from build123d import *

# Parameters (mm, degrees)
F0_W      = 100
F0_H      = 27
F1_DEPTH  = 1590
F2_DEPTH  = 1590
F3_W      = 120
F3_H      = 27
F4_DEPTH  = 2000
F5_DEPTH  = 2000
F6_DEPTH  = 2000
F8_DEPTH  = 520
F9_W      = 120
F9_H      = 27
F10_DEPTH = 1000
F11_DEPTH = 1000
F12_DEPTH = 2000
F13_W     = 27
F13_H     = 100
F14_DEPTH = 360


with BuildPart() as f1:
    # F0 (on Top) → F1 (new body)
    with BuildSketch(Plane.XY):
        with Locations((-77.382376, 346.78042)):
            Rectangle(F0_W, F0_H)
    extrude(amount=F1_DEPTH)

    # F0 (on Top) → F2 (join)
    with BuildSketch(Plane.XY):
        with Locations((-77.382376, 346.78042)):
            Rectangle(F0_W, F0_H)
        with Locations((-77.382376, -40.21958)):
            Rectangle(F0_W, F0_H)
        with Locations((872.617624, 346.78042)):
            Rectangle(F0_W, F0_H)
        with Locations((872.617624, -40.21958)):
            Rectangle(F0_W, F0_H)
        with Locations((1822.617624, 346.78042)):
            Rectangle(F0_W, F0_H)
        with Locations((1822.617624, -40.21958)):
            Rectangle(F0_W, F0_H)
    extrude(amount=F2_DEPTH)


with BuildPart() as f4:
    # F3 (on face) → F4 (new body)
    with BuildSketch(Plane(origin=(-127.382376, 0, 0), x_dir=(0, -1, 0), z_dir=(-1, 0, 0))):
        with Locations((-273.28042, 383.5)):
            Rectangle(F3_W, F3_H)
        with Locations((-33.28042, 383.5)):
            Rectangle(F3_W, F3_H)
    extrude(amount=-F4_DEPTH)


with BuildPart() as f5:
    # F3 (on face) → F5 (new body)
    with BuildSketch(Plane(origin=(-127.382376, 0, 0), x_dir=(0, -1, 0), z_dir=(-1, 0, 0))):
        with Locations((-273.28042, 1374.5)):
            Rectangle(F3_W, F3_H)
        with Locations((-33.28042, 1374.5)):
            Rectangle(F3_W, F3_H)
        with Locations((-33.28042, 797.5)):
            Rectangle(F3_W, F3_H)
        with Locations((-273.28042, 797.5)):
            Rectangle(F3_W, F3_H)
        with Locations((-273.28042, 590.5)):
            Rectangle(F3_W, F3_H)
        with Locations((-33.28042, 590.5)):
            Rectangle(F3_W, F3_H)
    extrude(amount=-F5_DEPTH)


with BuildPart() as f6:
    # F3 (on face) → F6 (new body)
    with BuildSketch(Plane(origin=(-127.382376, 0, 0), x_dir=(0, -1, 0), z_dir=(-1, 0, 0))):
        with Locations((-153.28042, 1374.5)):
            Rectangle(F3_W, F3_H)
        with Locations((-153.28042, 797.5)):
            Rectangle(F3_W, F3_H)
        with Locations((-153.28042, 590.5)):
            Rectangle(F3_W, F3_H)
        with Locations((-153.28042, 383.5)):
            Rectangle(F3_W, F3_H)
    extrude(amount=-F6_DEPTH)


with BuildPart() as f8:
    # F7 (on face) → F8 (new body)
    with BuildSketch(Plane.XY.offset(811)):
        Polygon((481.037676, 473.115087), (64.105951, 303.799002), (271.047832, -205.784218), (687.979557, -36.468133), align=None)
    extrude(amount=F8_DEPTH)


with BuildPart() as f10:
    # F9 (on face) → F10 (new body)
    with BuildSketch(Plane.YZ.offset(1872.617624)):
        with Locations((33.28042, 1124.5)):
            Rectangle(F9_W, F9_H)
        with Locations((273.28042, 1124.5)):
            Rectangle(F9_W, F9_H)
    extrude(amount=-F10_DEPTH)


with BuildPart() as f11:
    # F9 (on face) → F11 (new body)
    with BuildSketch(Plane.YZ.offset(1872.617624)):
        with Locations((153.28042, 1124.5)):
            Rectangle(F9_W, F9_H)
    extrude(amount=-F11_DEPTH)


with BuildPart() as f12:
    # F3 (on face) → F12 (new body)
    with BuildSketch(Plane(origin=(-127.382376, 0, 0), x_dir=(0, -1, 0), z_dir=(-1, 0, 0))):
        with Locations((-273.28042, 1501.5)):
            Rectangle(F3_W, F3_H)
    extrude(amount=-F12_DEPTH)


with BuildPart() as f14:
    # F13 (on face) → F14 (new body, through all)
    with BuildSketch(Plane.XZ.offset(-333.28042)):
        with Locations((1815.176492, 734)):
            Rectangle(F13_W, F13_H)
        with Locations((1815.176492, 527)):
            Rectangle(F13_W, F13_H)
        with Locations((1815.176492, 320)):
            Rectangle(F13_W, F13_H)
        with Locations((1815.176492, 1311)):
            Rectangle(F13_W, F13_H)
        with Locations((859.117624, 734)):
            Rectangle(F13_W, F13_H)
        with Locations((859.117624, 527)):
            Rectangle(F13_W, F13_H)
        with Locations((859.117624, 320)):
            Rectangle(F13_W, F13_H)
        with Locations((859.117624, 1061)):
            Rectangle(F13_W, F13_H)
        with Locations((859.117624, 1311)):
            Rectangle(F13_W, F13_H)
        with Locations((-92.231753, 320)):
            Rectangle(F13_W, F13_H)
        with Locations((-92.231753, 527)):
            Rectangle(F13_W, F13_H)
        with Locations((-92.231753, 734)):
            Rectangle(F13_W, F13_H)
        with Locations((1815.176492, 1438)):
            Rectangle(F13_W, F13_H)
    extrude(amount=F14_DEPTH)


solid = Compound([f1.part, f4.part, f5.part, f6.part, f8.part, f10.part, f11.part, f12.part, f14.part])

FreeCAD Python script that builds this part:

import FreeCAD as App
import Part
import Sketcher
from FreeCAD import Vector


def add_polygon(sketch, points):
    """Adds a closed chain of lines whose ends are joined by coincident constraints."""
    first, n = sketch.GeometryCount, len(points)
    for a, b in zip(points, points[1:] + points[:1]):
        sketch.addGeometry(Part.LineSegment(App.Vector(*a, 0), App.Vector(*b, 0)), False)
    for i in range(n):
        sketch.addConstraint(Sketcher.Constraint("Coincident", first + i, 2, first + (i + 1) % n, 1))

doc = App.newDocument("Part")
params = doc.addObject("Spreadsheet::Sheet", "Params")
for row, (alias, value) in enumerate([
    ("sketch1_width", "100 mm"),
    ("sketch1_height", "27 mm"),
    ("pad1_length", "1590 mm"),
    ("sketch2_width", "100 mm"),
    ("sketch2_height", "27 mm"),
    ("pad2_length", "1590 mm"),
    ("sketch3_width", "120 mm"),
    ("sketch3_height", "27 mm"),
    ("pad3_length", "2000 mm"),
    ("sketch4_width", "120 mm"),
    ("sketch4_height", "27 mm"),
    ("pad4_length", "2000 mm"),
    ("sketch5_width", "120 mm"),
    ("sketch5_height", "27 mm"),
    ("pad5_length", "2000 mm"),
    ("sketch6_length", "450 mm"),
    ("sketch6_length2", "550 mm"),
    ("pad6_length", "520 mm"),
    ("sketch7_width", "120 mm"),
    ("sketch7_height", "27 mm"),
    ("pad7_length", "1000 mm"),
    ("sketch8_width", "120 mm"),
    ("sketch8_height", "27 mm"),
    ("pad8_length", "1000 mm"),
    ("sketch9_width", "120 mm"),
    ("sketch9_height", "27 mm"),
    ("pad9_length", "2000 mm"),
    ("sketch10_width", "27 mm"),
    ("sketch10_height", "100 mm"),
    ("pad10_length", "360 mm"),
], start=1):
    params.set(f"A{row}", alias)
    params.set(f"B{row}", "=" + value)
    params.setAlias(f"B{row}", alias)

body = doc.addObject("PartDesign::Body", "Body")
body.AllowCompound = True

# Sketch on XY plane
sketch1 = body.newObject("Sketcher::SketchObject", "Sketch")
sketch1.AttachmentSupport = (doc.getObject("XY_Plane"), [""])
sketch1.MapMode = "FlatFace"
add_polygon(sketch1, [(-127, 360), (-127, 333), (-27, 333), (-27, 360)])  # lines 0-3
sketch1.addConstraint([
    Sketcher.Constraint("Vertical", 0),
    Sketcher.Constraint("Horizontal", 1),
    Sketcher.Constraint("Vertical", 2),
    Sketcher.Constraint("Horizontal", 3),
    Sketcher.Constraint("DistanceX", 1, 1, 1, 2, 100.0),
    Sketcher.Constraint("DistanceY", 0, 2, 0, 1, 27.0),
    Sketcher.Constraint("DistanceY", -1, 1, 0, 2, 333.28042),
    Sketcher.Constraint("DistanceX", 0, 2, -1, 1, 127.382376),
])
sketch1.setExpression("Constraints[8]", "Params.sketch1_width")
sketch1.setExpression("Constraints[9]", "Params.sketch1_height")
pad1 = body.newObject("PartDesign::Pad", "Pad")
pad1.Profile = sketch1
pad1.setExpression("Length", "Params.pad1_length")

# Sketch on XY plane
sketch2 = body.newObject("Sketcher::SketchObject", "Sketch001")
sketch2.AttachmentSupport = (doc.getObject("XY_Plane"), [""])
sketch2.MapMode = "FlatFace"
add_polygon(sketch2, [(-127, 360), (-127, 333), (-27, 333), (-27, 360)])  # lines 0-3
add_polygon(sketch2, [(-127, -27), (-127, -54), (-27, -54), (-27, -27)])  # lines 4-7
add_polygon(sketch2, [(823, 360), (823, 333), (923, 333), (923, 360)])  # lines 8-11
add_polygon(sketch2, [(823, -27), (823, -54), (923, -54), (923, -27)])  # lines 12-15
add_polygon(sketch2, [(1773, 360), (1773, 333), (1873, 333), (1873, 360)])  # lines 16-19
add_polygon(sketch2, [(1773, -27), (1773, -54), (1873, -54), (1873, -27)])  # lines 20-23
sketch2.addConstraint([
    Sketcher.Constraint("Vertical", 0),
    Sketcher.Constraint("Horizontal", 1),
    Sketcher.Constraint("Vertical", 2),
    Sketcher.Constraint("Horizontal", 3),
    Sketcher.Constraint("Vertical", 4),
    Sketcher.Constraint("Horizontal", 5),
    Sketcher.Constraint("Vertical", 6),
    Sketcher.Constraint("Horizontal", 7),
    Sketcher.Constraint("Vertical", 8),
    Sketcher.Constraint("Horizontal", 9),
    Sketcher.Constraint("Vertical", 10),
    Sketcher.Constraint("Horizontal", 11),
    Sketcher.Constraint("Vertical", 12),
    Sketcher.Constraint("Horizontal", 13),
    Sketcher.Constraint("Vertical", 14),
    Sketcher.Constraint("Horizontal", 15),
    Sketcher.Constraint("Vertical", 16),
    Sketcher.Constraint("Horizontal", 17),
    Sketcher.Constraint("Vertical", 18),
    Sketcher.Constraint("Horizontal", 19),
    Sketcher.Constraint("Vertical", 20),
    Sketcher.Constraint("Horizontal", 21),
    Sketcher.Constraint("Vertical", 22),
    Sketcher.Constraint("Horizontal", 23),
    Sketcher.Constraint("Horizontal", 1, 2, 8, 2),
    Sketcher.Constraint("Horizontal", 3, 2, 10, 2),
    Sketcher.Constraint("Horizontal", 5, 2, 12, 2),
    Sketcher.Constraint("Horizontal", 7, 2, 14, 2),
    Sketcher.Constraint("Horizontal", 9, 2, 16, 2),
    Sketcher.Constraint("Horizontal", 11, 2, 18, 2),
    Sketcher.Constraint("Horizontal", 13, 2, 20, 2),
    Sketcher.Constraint("Horizontal", 15, 2, 22, 2),
    Sketcher.Constraint("Vertical", 3, 2, 4, 2),
    Sketcher.Constraint("Vertical", 2, 2, 5, 2),
    Sketcher.Constraint("Vertical", 11, 2, 12, 2),
    Sketcher.Constraint("Vertical", 10, 2, 13, 2),
    Sketcher.Constraint("Vertical", 19, 2, 20, 2),
    Sketcher.Constraint("Vertical", 18, 2, 21, 2),
    Sketcher.Constraint("Equal", 7, 9),
    Sketcher.Constraint("Equal", 15, 17),
    Sketcher.Constraint("Equal", 2, 4),
    Sketcher.Constraint("DistanceX", 1, 1, 1, 2, 100.0),
    Sketcher.Constraint("DistanceY", 0, 2, 0, 1, 27.0),
    Sketcher.Constraint("DistanceY", 4, 2, 0, 2, 387.0),
    Sketcher.Constraint("DistanceX", 1, 2, 8, 2, 850.0),
    Sketcher.Constraint("DistanceX", 9, 2, 16, 2, 850.0),
    Sketcher.Constraint("DistanceY", -1, 1, 0, 2, 333.28042),
    Sketcher.Constraint("DistanceX", 0, 2, -1, 1, 127.382376),
])
sketch2.setExpression("Constraints[65]", "Params.sketch2_width")
sketch2.setExpression("Constraints[66]", "Params.sketch2_height")
pad2 = body.newObject("PartDesign::Pad", "Pad001")
pad2.Profile = sketch2
pad2.setExpression("Length", "Params.pad2_length")
body2 = doc.addObject("PartDesign::Body", "Body001")
body2.AllowCompound = True

# Sketch on YZ plane
sketch3 = body2.newObject("Sketcher::SketchObject", "Sketch002")
sketch3.AttachmentSupport = (doc.getObject("YZ_Plane001"), [""])
sketch3.MapMode = "FlatFace"
sketch3.AttachmentOffset = App.Placement(Vector(0, 0, -127.382376), App.Rotation())
add_polygon(sketch3, [(333, 397), (333, 370), (213, 370), (213, 397)])  # lines 0-3
add_polygon(sketch3, [(93, 397), (93, 370), (-27, 370), (-27, 397)])  # lines 4-7
sketch3.addConstraint([
    Sketcher.Constraint("Vertical", 0),
    Sketcher.Constraint("Horizontal", 1),
    Sketcher.Constraint("Vertical", 2),
    Sketcher.Constraint("Horizontal", 3),
    Sketcher.Constraint("Vertical", 4),
    Sketcher.Constraint("Horizontal", 5),
    Sketcher.Constraint("Vertical", 6),
    Sketcher.Constraint("Horizontal", 7),
    Sketcher.Constraint("Horizontal", 1, 2, 4, 2),
    Sketcher.Constraint("Horizontal", 3, 2, 6, 2),
    Sketcher.Constraint("Equal", 3, 5),
    Sketcher.Constraint("DistanceX", 1, 2, 1, 1, 120.0),
    Sketcher.Constraint("DistanceY", 0, 2, 0, 1, 27.0),
    Sketcher.Constraint("DistanceY", -1, 1, 0, 2, 370.0),
    Sketcher.Constraint("DistanceX", 4, 2, 1, 2, 120.0),
    Sketcher.Constraint("DistanceX", -1, 1, 0, 2, 333.28042),
])
sketch3.setExpression("Constraints[19]", "Params.sketch3_width")
sketch3.setExpression("Constraints[20]", "Params.sketch3_height")
pad3 = body2.newObject("PartDesign::Pad", "Pad002")
pad3.Profile = sketch3
pad3.setExpression("Length", "Params.pad3_length")
body3 = doc.addObject("PartDesign::Body", "Body002")
body3.AllowCompound = True

# Sketch on YZ plane
sketch4 = body3.newObject("Sketcher::SketchObject", "Sketch003")
sketch4.AttachmentSupport = (doc.getObject("YZ_Plane002"), [""])
sketch4.MapMode = "FlatFace"
sketch4.AttachmentOffset = App.Placement(Vector(0, 0, -127.382376), App.Rotation())
add_polygon(sketch4, [(333, 1388), (333, 1361), (213, 1361), (213, 1388)])  # lines 0-3
add_polygon(sketch4, [(93, 1388), (93, 1361), (-27, 1361), (-27, 1388)])  # lines 4-7
add_polygon(sketch4, [(93, 811), (93, 784), (-27, 784), (-27, 811)])  # lines 8-11
add_polygon(sketch4, [(333, 811), (333, 784), (213, 784), (213, 811)])  # lines 12-15
add_polygon(sketch4, [(333, 604), (333, 577), (213, 577), (213, 604)])  # lines 16-19
add_polygon(sketch4, [(93, 604), (93, 577), (-27, 577), (-27, 604)])  # lines 20-23
sketch4.addConstraint([
    Sketcher.Constraint("Vertical", 0),
    Sketcher.Constraint("Horizontal", 1),
    Sketcher.Constraint("Vertical", 2),
    Sketcher.Constraint("Horizontal", 3),
    Sketcher.Constraint("Vertical", 4),
    Sketcher.Constraint("Horizontal", 5),
    Sketcher.Constraint("Vertical", 6),
    Sketcher.Constraint("Horizontal", 7),
    Sketcher.Constraint("Vertical", 8),
    Sketcher.Constraint("Horizontal", 9),
    Sketcher.Constraint("Vertical", 10),
    Sketcher.Constraint("Horizontal", 11),
    Sketcher.Constraint("Vertical", 12),
    Sketcher.Constraint("Horizontal", 13),
    Sketcher.Constraint("Vertical", 14),
    Sketcher.Constraint("Horizontal", 15),
    Sketcher.Constraint("Vertical", 16),
    Sketcher.Constraint("Horizontal", 17),
    Sketcher.Constraint("Vertical", 18),
    Sketcher.Constraint("Horizontal", 19),
    Sketcher.Constraint("Vertical", 20),
    Sketcher.Constraint("Horizontal", 21),
    Sketcher.Constraint("Vertical", 22),
    Sketcher.Constraint("Horizontal", 23),
    Sketcher.Constraint("Horizontal", 1, 2, 4, 2),
    Sketcher.Constraint("Horizontal", 3, 2, 6, 2),
    Sketcher.Constraint("Horizontal", 9, 2, 12, 2),
    Sketcher.Constraint("Horizontal", 11, 2, 14, 2),
    Sketcher.Constraint("Horizontal", 17, 2, 20, 2),
    Sketcher.Constraint("Horizontal", 19, 2, 22, 2),
    Sketcher.Constraint("Vertical", 7, 2, 8, 2),
    Sketcher.Constraint("Vertical", 6, 2, 9, 2),
    Sketcher.Constraint("Vertical", 3, 2, 12, 2),
    Sketcher.Constraint("Vertical", 2, 2, 13, 2),
    Sketcher.Constraint("Vertical", 15, 2, 16, 2),
    Sketcher.Constraint("Vertical", 14, 2, 17, 2),
    Sketcher.Constraint("Vertical", 11, 2, 20, 2),
    Sketcher.Constraint("Vertical", 10, 2, 21, 2),
    Sketcher.Constraint("Equal", 3, 5),
    Sketcher.Constraint("Equal", 6, 8),
    Sketcher.Constraint("Equal", 14, 16),
    Sketcher.Constraint("DistanceX", 1, 2, 1, 1, 120.0),
    Sketcher.Constraint("DistanceY", 0, 2, 0, 1, 27.0),
    Sketcher.Constraint("DistanceY", -1, 1, 0, 2, 1361.0),
    Sketcher.Constraint("DistanceY", -1, 1, 8, 2, 784.0),
    Sketcher.Constraint("DistanceY", -1, 1, 16, 2, 577.0),
    Sketcher.Constraint("DistanceX", 4, 2, 1, 2, 120.0),
    Sketcher.Constraint("DistanceX", -1, 1, 0, 2, 333.28042),
])
sketch4.setExpression("Constraints[65]", "Params.sketch4_width")
sketch4.setExpression("Constraints[66]", "Params.sketch4_height")
pad4 = body3.newObject("PartDesign::Pad", "Pad003")
pad4.Profile = sketch4
pad4.setExpression("Length", "Params.pad4_length")
body4 = doc.addObject("PartDesign::Body", "Body003")
body4.AllowCompound = True

# Sketch on YZ plane
sketch5 = body4.newObject("Sketcher::SketchObject", "Sketch004")
sketch5.AttachmentSupport = (doc.getObject("YZ_Plane003"), [""])
sketch5.MapMode = "FlatFace"
sketch5.AttachmentOffset = App.Placement(Vector(0, 0, -127.382376), App.Rotation())
add_polygon(sketch5, [(213, 1388), (213, 1361), (93, 1361), (93, 1388)])  # lines 0-3
add_polygon(sketch5, [(213, 811), (213, 784), (93, 784), (93, 811)])  # lines 4-7
add_polygon(sketch5, [(213, 604), (213, 577), (93, 577), (93, 604)])  # lines 8-11
add_polygon(sketch5, [(213, 397), (213, 370), (93, 370), (93, 397)])  # lines 12-15
sketch5.addConstraint([
    Sketcher.Constraint("Vertical", 0),
    Sketcher.Constraint("Horizontal", 1),
    Sketcher.Constraint("Vertical", 2),
    Sketcher.Constraint("Horizontal", 3),
    Sketcher.Constraint("Vertical", 4),
    Sketcher.Constraint("Horizontal", 5),
    Sketcher.Constraint("Vertical", 6),
    Sketcher.Constraint("Horizontal", 7),
    Sketcher.Constraint("Vertical", 8),
    Sketcher.Constraint("Horizontal", 9),
    Sketcher.Constraint("Vertical", 10),
    Sketcher.Constraint("Horizontal", 11),
    Sketcher.Constraint("Vertical", 12),
    Sketcher.Constraint("Horizontal", 13),
    Sketcher.Constraint("Vertical", 14),
    Sketcher.Constraint("Horizontal", 15),
    Sketcher.Constraint("Vertical", 3, 2, 4, 2),
    Sketcher.Constraint("Vertical", 2, 2, 5, 2),
    Sketcher.Constraint("Vertical", 7, 2, 8, 2),
    Sketcher.Constraint("Vertical", 6, 2, 9, 2),
    Sketcher.Constraint("Vertical", 11, 2, 12, 2),
    Sketcher.Constraint("Vertical", 10, 2, 13, 2),
    Sketcher.Constraint("Equal", 2, 4),
    Sketcher.Constraint("Equal", 6, 8),
    Sketcher.Constraint("Equal", 10, 12),
    Sketcher.Constraint("DistanceX", 1, 2, 1, 1, 120.0),
    Sketcher.Constraint("DistanceY", 0, 2, 0, 1, 27.0),
    Sketcher.Constraint("DistanceY", -1, 1, 0, 2, 1361.0),
    Sketcher.Constraint("DistanceY", -1, 1, 4, 2, 784.0),
    Sketcher.Constraint("DistanceY", -1, 1, 8, 2, 577.0),
    Sketcher.Constraint("DistanceY", -1, 1, 12, 2, 370.0),
    Sketcher.Constraint("DistanceX", -1, 1, 0, 2, 213.28042),
])
sketch5.setExpression("Constraints[41]", "Params.sketch5_width")
sketch5.setExpression("Constraints[42]", "Params.sketch5_height")
pad5 = body4.newObject("PartDesign::Pad", "Pad004")
pad5.Profile = sketch5
pad5.setExpression("Length", "Params.pad5_length")
body5 = doc.addObject("PartDesign::Body", "Body004")

# Sketch on XY plane
sketch6 = body5.newObject("Sketcher::SketchObject", "Sketch005")
sketch6.AttachmentSupport = (doc.getObject("XY_Plane004"), [""])
sketch6.MapMode = "FlatFace"
sketch6.AttachmentOffset = App.Placement(Vector(0, 0, 811), App.Rotation())
add_polygon(sketch6, [(481, 473), (64, 304), (271, -206), (688, -36)])  # lines 0-3
sketch6.addConstraint([
    Sketcher.Constraint("Perpendicular", 0, 1),
    Sketcher.Constraint("Perpendicular", 1, 2),
    Sketcher.Constraint("Perpendicular", 2, 3),
    Sketcher.Constraint("Distance", 0, 450.0),
    Sketcher.Constraint("Distance", 1, 550.0),
    Sketcher.Constraint("DistanceY", -1, 1, 0, 2, 303.799002),
    Sketcher.Constraint("DistanceX", -1, 1, 0, 2, 64.105951),
    Sketcher.Constraint("DistanceY", 1, 2, -1, 1, 205.784218),
])
sketch6.setExpression("Constraints[7]", "Params.sketch6_length")
sketch6.setExpression("Constraints[8]", "Params.sketch6_length2")
pad6 = body5.newObject("PartDesign::Pad", "Pad005")
pad6.Profile = sketch6
pad6.setExpression("Length", "Params.pad6_length")
body6 = doc.addObject("PartDesign::Body", "Body005")
body6.AllowCompound = True

# Sketch on YZ plane
sketch7 = body6.newObject("Sketcher::SketchObject", "Sketch006")
sketch7.AttachmentSupport = (doc.getObject("YZ_Plane005"), [""])
sketch7.MapMode = "FlatFace"
sketch7.AttachmentOffset = App.Placement(Vector(0, 0, 1872.617624), App.Rotation())
add_polygon(sketch7, [(-27, 1138), (-27, 1111), (93, 1111), (93, 1138)])  # lines 0-3
add_polygon(sketch7, [(213, 1138), (213, 1111), (333, 1111), (333, 1138)])  # lines 4-7
sketch7.addConstraint([
    Sketcher.Constraint("Vertical", 0),
    Sketcher.Constraint("Horizontal", 1),
    Sketcher.Constraint("Vertical", 2),
    Sketcher.Constraint("Horizontal", 3),
    Sketcher.Constraint("Vertical", 4),
    Sketcher.Constraint("Horizontal", 5),
    Sketcher.Constraint("Vertical", 6),
    Sketcher.Constraint("Horizontal", 7),
    Sketcher.Constraint("Horizontal", 1, 2, 4, 2),
    Sketcher.Constraint("Horizontal", 3, 2, 6, 2),
    Sketcher.Constraint("Equal", 3, 5),
    Sketcher.Constraint("DistanceX", 1, 1, 1, 2, 120.0),
    Sketcher.Constraint("DistanceY", 0, 2, 0, 1, 27.0),
    Sketcher.Constraint("DistanceY", -1, 1, 0, 2, 1111.0),
    Sketcher.Constraint("DistanceX", 1, 2, 4, 2, 120.0),
    Sketcher.Constraint("DistanceX", 0, 2, -1, 1, 26.71958),
])
sketch7.setExpression("Constraints[19]", "Params.sketch7_width")
sketch7.setExpression("Constraints[20]", "Params.sketch7_height")
pad7 = body6.newObject("PartDesign::Pad", "Pad006")
pad7.Profile = sketch7
pad7.setExpression("Length", "Params.pad7_length")
pad7.Reversed = True
body7 = doc.addObject("PartDesign::Body", "Body006")

# Sketch on YZ plane
sketch8 = body7.newObject("Sketcher::SketchObject", "Sketch007")
sketch8.AttachmentSupport = (doc.getObject("YZ_Plane006"), [""])
sketch8.MapMode = "FlatFace"
sketch8.AttachmentOffset = App.Placement(Vector(0, 0, 1872.617624), App.Rotation())
add_polygon(sketch8, [(93, 1138), (93, 1111), (213, 1111), (213, 1138)])  # lines 0-3
sketch8.addConstraint([
    Sketcher.Constraint("Vertical", 0),
    Sketcher.Constraint("Horizontal", 1),
    Sketcher.Constraint("Vertical", 2),
    Sketcher.Constraint("Horizontal", 3),
    Sketcher.Constraint("DistanceX", 1, 1, 1, 2, 120.0),
    Sketcher.Constraint("DistanceY", 0, 2, 0, 1, 27.0),
    Sketcher.Constraint("DistanceY", -1, 1, 0, 2, 1111.0),
    Sketcher.Constraint("DistanceX", -1, 1, 0, 2, 93.28042),
])
sketch8.setExpression("Constraints[8]", "Params.sketch8_width")
sketch8.setExpression("Constraints[9]", "Params.sketch8_height")
pad8 = body7.newObject("PartDesign::Pad", "Pad007")
pad8.Profile = sketch8
pad8.setExpression("Length", "Params.pad8_length")
pad8.Reversed = True
body8 = doc.addObject("PartDesign::Body", "Body007")

# Sketch on YZ plane
sketch9 = body8.newObject("Sketcher::SketchObject", "Sketch008")
sketch9.AttachmentSupport = (doc.getObject("YZ_Plane007"), [""])
sketch9.MapMode = "FlatFace"
sketch9.AttachmentOffset = App.Placement(Vector(0, 0, -127.382376), App.Rotation())
add_polygon(sketch9, [(333, 1515), (333, 1488), (213, 1488), (213, 1515)])  # lines 0-3
sketch9.addConstraint([
    Sketcher.Constraint("Vertical", 0),
    Sketcher.Constraint("Horizontal", 1),
    Sketcher.Constraint("Vertical", 2),
    Sketcher.Constraint("Horizontal", 3),
    Sketcher.Constraint("DistanceX", 1, 2, 1, 1, 120.0),
    Sketcher.Constraint("DistanceY", 0, 2, 0, 1, 27.0),
    Sketcher.Constraint("DistanceY", -1, 1, 0, 2, 1488.0),
    Sketcher.Constraint("DistanceX", -1, 1, 0, 2, 333.28042),
])
sketch9.setExpression("Constraints[8]", "Params.sketch9_width")
sketch9.setExpression("Constraints[9]", "Params.sketch9_height")
pad9 = body8.newObject("PartDesign::Pad", "Pad008")
pad9.Profile = sketch9
pad9.setExpression("Length", "Params.pad9_length")
body9 = doc.addObject("PartDesign::Body", "Body008")
body9.AllowCompound = True

# Sketch on XZ plane
sketch10 = body9.newObject("Sketcher::SketchObject", "Sketch009")
sketch10.AttachmentSupport = (doc.getObject("XZ_Plane008"), [""])
sketch10.MapMode = "FlatFace"
sketch10.AttachmentOffset = App.Placement(Vector(0, 0, -333.28042), App.Rotation())
add_polygon(sketch10, [(1802, 784), (1802, 684), (1829, 684), (1829, 784)])  # lines 0-3
add_polygon(sketch10, [(1802, 577), (1802, 477), (1829, 477), (1829, 577)])  # lines 4-7
add_polygon(sketch10, [(1802, 370), (1802, 270), (1829, 270), (1829, 370)])  # lines 8-11
add_polygon(sketch10, [(1802, 1361), (1802, 1261), (1829, 1261), (1829, 1361)])  # lines 12-15
add_polygon(sketch10, [(846, 784), (846, 684), (873, 684), (873, 784)])  # lines 16-19
add_polygon(sketch10, [(846, 577), (846, 477), (873, 477), (873, 577)])  # lines 20-23
add_polygon(sketch10, [(846, 370), (846, 270), (873, 270), (873, 370)])  # lines 24-27
add_polygon(sketch10, [(846, 1111), (846, 1011), (873, 1011), (873, 1111)])  # lines 28-31
add_polygon(sketch10, [(846, 1361), (846, 1261), (873, 1261), (873, 1361)])  # lines 32-35
add_polygon(sketch10, [(-106, 370), (-106, 270), (-79, 270), (-79, 370)])  # lines 36-39
add_polygon(sketch10, [(-106, 577), (-106, 477), (-79, 477), (-79, 577)])  # lines 40-43
add_polygon(sketch10, [(-106, 784), (-106, 684), (-79, 684), (-79, 784)])  # lines 44-47
add_polygon(sketch10, [(1802, 1488), (1802, 1388), (1829, 1388), (1829, 1488)])  # lines 48-51
sketch10.addConstraint([
    Sketcher.Constraint("Vertical", 0),
    Sketcher.Constraint("Horizontal", 1),
    Sketcher.Constraint("Vertical", 2),
    Sketcher.Constraint("Horizontal", 3),
    Sketcher.Constraint("Vertical", 4),
    Sketcher.Constraint("Horizontal", 5),
    Sketcher.Constraint("Vertical", 6),
    Sketcher.Constraint("Horizontal", 7),
    Sketcher.Constraint("Vertical", 8),
    Sketcher.Constraint("Horizontal", 9),
    Sketcher.Constraint("Vertical", 10),
    Sketcher.Constraint("Horizontal", 11),
    Sketcher.Constraint("Vertical", 12),
    Sketcher.Constraint("Horizontal", 13),
    Sketcher.Constraint("Vertical", 14),
    Sketcher.Constraint("Horizontal", 15),
    Sketcher.Constraint("Vertical", 16),
    Sketcher.Constraint("Horizontal", 17),
    Sketcher.Constraint("Vertical", 18),
    Sketcher.Constraint("Horizontal", 19),
    Sketcher.Constraint("Vertical", 20),
    Sketcher.Constraint("Horizontal", 21),
    Sketcher.Constraint("Vertical", 22),
    Sketcher.Constraint("Horizontal", 23),
    Sketcher.Constraint("Vertical", 24),
    Sketcher.Constraint("Horizontal", 25),
    Sketcher.Constraint("Vertical", 26),
    Sketcher.Constraint("Horizontal", 27),
    Sketcher.Constraint("Vertical", 28),
    Sketcher.Constraint("Horizontal", 29),
    Sketcher.Constraint("Vertical", 30),
    Sketcher.Constraint("Horizontal", 31),
    Sketcher.Constraint("Vertical", 32),
    Sketcher.Constraint("Horizontal", 33),
    Sketcher.Constraint("Vertical", 34),
    Sketcher.Constraint("Horizontal", 35),
    Sketcher.Constraint("Vertical", 36),
    Sketcher.Constraint("Horizontal", 37),
    Sketcher.Constraint("Vertical", 38),
    Sketcher.Constraint("Horizontal", 39),
    Sketcher.Constraint("Vertical", 40),
    Sketcher.Constraint("Horizontal", 41),
    Sketcher.Constraint("Vertical", 42),
    Sketcher.Constraint("Horizontal", 43),
    Sketcher.Constraint("Vertical", 44),
    Sketcher.Constraint("Horizontal", 45),
    Sketcher.Constraint("Vertical", 46),
    Sketcher.Constraint("Horizontal", 47),
    Sketcher.Constraint("Vertical", 48),
    Sketcher.Constraint("Horizontal", 49),
    Sketcher.Constraint("Vertical", 50),
    Sketcher.Constraint("Horizontal", 51),
    Sketcher.Constraint("Horizontal", 1, 2, 16, 2),
    Sketcher.Constraint("Horizontal", 3, 2, 18, 2),
    Sketcher.Constraint("Horizontal", 5, 2, 20, 2),
    Sketcher.Constraint("Horizontal", 7, 2, 22, 2),
    Sketcher.Constraint("Horizontal", 9, 2, 24, 2),
    Sketcher.Constraint("Horizontal", 11, 2, 26, 2),
    Sketcher.Constraint("Horizontal", 13, 2, 32, 2),
    Sketcher.Constraint("Horizontal", 15, 2, 34, 2),
    Sketcher.Constraint("Horizontal", 25, 2, 36, 2),
    Sketcher.Constraint("Horizontal", 27, 2, 38, 2),
    Sketcher.Constraint("Horizontal", 21, 2, 40, 2),
    Sketcher.Constraint("Horizontal", 23, 2, 42, 2),
    Sketcher.Constraint("Horizontal", 17, 2, 44, 2),
    Sketcher.Constraint("Horizontal", 19, 2, 46, 2),
    Sketcher.Constraint("Vertical", 3, 2, 4, 2),
    Sketcher.Constraint("Vertical", 2, 2, 5, 2),
    Sketcher.Constraint("Vertical", 7, 2, 8, 2),
    Sketcher.Constraint("Vertical", 6, 2, 9, 2),
    Sketcher.Constraint("Vertical", 11, 2, 12, 2),
    Sketcher.Constraint("Vertical", 10, 2, 13, 2),
    Sketcher.Constraint("Vertical", 19, 2, 20, 2),
    Sketcher.Constraint("Vertical", 18, 2, 21, 2),
    Sketcher.Constraint("Vertical", 23, 2, 24, 2),
    Sketcher.Constraint("Vertical", 22, 2, 25, 2),
    Sketcher.Constraint("Vertical", 27, 2, 28, 2),
    Sketcher.Constraint("Vertical", 26, 2, 29, 2),
    Sketcher.Constraint("Vertical", 31, 2, 32, 2),
    Sketcher.Constraint("Vertical", 30, 2, 33, 2),
    Sketcher.Constraint("Vertical", 39, 2, 40, 2),
    Sketcher.Constraint("Vertical", 38, 2, 41, 2),
    Sketcher.Constraint("Vertical", 43, 2, 44, 2),
    Sketcher.Constraint("Vertical", 42, 2, 45, 2),
    Sketcher.Constraint("Vertical", 15, 2, 48, 2),
    Sketcher.Constraint("Vertical", 14, 2, 49, 2),
    Sketcher.Constraint("Equal", 15, 17),
    Sketcher.Constraint("Equal", 35, 37),
    Sketcher.Constraint("Equal", 2, 4),
    Sketcher.Constraint("Equal", 6, 8),
    Sketcher.Constraint("Equal", 10, 12),
    Sketcher.Constraint("Equal", 26, 28),
    Sketcher.Constraint("Equal", 46, 48),
    Sketcher.Constraint("DistanceX", 1, 1, 1, 2, 27.0),
    Sketcher.Constraint("DistanceY", 0, 2, 0, 1, 100.0),
    Sketcher.Constraint("DistanceY", -1, 1, 0, 2, 684.0),
    Sketcher.Constraint("DistanceY", -1, 1, 4, 2, 477.0),
    Sketcher.Constraint("DistanceY", -1, 1, 8, 2, 270.0),
    Sketcher.Constraint("DistanceY", -1, 1, 12, 2, 1261.0),
    Sketcher.Constraint("DistanceY", -1, 1, 28, 2, 1011.0),
    Sketcher.Constraint("DistanceY", -1, 1, 48, 2, 1388.0),
    Sketcher.Constraint("DistanceX", -1, 1, 0, 2, 1801.676492),
    Sketcher.Constraint("DistanceX", 16, 2, 0, 2, 956.058868),
    Sketcher.Constraint("DistanceX", 36, 2, -1, 1, 105.731753),
])
sketch10.setExpression("Constraints[145]", "Params.sketch10_width")
sketch10.setExpression("Constraints[146]", "Params.sketch10_height")
pad10 = body9.newObject("PartDesign::Pad", "Pad009")
pad10.Profile = sketch10
pad10.setExpression("Length", "Params.pad10_length")

doc.recompute()
